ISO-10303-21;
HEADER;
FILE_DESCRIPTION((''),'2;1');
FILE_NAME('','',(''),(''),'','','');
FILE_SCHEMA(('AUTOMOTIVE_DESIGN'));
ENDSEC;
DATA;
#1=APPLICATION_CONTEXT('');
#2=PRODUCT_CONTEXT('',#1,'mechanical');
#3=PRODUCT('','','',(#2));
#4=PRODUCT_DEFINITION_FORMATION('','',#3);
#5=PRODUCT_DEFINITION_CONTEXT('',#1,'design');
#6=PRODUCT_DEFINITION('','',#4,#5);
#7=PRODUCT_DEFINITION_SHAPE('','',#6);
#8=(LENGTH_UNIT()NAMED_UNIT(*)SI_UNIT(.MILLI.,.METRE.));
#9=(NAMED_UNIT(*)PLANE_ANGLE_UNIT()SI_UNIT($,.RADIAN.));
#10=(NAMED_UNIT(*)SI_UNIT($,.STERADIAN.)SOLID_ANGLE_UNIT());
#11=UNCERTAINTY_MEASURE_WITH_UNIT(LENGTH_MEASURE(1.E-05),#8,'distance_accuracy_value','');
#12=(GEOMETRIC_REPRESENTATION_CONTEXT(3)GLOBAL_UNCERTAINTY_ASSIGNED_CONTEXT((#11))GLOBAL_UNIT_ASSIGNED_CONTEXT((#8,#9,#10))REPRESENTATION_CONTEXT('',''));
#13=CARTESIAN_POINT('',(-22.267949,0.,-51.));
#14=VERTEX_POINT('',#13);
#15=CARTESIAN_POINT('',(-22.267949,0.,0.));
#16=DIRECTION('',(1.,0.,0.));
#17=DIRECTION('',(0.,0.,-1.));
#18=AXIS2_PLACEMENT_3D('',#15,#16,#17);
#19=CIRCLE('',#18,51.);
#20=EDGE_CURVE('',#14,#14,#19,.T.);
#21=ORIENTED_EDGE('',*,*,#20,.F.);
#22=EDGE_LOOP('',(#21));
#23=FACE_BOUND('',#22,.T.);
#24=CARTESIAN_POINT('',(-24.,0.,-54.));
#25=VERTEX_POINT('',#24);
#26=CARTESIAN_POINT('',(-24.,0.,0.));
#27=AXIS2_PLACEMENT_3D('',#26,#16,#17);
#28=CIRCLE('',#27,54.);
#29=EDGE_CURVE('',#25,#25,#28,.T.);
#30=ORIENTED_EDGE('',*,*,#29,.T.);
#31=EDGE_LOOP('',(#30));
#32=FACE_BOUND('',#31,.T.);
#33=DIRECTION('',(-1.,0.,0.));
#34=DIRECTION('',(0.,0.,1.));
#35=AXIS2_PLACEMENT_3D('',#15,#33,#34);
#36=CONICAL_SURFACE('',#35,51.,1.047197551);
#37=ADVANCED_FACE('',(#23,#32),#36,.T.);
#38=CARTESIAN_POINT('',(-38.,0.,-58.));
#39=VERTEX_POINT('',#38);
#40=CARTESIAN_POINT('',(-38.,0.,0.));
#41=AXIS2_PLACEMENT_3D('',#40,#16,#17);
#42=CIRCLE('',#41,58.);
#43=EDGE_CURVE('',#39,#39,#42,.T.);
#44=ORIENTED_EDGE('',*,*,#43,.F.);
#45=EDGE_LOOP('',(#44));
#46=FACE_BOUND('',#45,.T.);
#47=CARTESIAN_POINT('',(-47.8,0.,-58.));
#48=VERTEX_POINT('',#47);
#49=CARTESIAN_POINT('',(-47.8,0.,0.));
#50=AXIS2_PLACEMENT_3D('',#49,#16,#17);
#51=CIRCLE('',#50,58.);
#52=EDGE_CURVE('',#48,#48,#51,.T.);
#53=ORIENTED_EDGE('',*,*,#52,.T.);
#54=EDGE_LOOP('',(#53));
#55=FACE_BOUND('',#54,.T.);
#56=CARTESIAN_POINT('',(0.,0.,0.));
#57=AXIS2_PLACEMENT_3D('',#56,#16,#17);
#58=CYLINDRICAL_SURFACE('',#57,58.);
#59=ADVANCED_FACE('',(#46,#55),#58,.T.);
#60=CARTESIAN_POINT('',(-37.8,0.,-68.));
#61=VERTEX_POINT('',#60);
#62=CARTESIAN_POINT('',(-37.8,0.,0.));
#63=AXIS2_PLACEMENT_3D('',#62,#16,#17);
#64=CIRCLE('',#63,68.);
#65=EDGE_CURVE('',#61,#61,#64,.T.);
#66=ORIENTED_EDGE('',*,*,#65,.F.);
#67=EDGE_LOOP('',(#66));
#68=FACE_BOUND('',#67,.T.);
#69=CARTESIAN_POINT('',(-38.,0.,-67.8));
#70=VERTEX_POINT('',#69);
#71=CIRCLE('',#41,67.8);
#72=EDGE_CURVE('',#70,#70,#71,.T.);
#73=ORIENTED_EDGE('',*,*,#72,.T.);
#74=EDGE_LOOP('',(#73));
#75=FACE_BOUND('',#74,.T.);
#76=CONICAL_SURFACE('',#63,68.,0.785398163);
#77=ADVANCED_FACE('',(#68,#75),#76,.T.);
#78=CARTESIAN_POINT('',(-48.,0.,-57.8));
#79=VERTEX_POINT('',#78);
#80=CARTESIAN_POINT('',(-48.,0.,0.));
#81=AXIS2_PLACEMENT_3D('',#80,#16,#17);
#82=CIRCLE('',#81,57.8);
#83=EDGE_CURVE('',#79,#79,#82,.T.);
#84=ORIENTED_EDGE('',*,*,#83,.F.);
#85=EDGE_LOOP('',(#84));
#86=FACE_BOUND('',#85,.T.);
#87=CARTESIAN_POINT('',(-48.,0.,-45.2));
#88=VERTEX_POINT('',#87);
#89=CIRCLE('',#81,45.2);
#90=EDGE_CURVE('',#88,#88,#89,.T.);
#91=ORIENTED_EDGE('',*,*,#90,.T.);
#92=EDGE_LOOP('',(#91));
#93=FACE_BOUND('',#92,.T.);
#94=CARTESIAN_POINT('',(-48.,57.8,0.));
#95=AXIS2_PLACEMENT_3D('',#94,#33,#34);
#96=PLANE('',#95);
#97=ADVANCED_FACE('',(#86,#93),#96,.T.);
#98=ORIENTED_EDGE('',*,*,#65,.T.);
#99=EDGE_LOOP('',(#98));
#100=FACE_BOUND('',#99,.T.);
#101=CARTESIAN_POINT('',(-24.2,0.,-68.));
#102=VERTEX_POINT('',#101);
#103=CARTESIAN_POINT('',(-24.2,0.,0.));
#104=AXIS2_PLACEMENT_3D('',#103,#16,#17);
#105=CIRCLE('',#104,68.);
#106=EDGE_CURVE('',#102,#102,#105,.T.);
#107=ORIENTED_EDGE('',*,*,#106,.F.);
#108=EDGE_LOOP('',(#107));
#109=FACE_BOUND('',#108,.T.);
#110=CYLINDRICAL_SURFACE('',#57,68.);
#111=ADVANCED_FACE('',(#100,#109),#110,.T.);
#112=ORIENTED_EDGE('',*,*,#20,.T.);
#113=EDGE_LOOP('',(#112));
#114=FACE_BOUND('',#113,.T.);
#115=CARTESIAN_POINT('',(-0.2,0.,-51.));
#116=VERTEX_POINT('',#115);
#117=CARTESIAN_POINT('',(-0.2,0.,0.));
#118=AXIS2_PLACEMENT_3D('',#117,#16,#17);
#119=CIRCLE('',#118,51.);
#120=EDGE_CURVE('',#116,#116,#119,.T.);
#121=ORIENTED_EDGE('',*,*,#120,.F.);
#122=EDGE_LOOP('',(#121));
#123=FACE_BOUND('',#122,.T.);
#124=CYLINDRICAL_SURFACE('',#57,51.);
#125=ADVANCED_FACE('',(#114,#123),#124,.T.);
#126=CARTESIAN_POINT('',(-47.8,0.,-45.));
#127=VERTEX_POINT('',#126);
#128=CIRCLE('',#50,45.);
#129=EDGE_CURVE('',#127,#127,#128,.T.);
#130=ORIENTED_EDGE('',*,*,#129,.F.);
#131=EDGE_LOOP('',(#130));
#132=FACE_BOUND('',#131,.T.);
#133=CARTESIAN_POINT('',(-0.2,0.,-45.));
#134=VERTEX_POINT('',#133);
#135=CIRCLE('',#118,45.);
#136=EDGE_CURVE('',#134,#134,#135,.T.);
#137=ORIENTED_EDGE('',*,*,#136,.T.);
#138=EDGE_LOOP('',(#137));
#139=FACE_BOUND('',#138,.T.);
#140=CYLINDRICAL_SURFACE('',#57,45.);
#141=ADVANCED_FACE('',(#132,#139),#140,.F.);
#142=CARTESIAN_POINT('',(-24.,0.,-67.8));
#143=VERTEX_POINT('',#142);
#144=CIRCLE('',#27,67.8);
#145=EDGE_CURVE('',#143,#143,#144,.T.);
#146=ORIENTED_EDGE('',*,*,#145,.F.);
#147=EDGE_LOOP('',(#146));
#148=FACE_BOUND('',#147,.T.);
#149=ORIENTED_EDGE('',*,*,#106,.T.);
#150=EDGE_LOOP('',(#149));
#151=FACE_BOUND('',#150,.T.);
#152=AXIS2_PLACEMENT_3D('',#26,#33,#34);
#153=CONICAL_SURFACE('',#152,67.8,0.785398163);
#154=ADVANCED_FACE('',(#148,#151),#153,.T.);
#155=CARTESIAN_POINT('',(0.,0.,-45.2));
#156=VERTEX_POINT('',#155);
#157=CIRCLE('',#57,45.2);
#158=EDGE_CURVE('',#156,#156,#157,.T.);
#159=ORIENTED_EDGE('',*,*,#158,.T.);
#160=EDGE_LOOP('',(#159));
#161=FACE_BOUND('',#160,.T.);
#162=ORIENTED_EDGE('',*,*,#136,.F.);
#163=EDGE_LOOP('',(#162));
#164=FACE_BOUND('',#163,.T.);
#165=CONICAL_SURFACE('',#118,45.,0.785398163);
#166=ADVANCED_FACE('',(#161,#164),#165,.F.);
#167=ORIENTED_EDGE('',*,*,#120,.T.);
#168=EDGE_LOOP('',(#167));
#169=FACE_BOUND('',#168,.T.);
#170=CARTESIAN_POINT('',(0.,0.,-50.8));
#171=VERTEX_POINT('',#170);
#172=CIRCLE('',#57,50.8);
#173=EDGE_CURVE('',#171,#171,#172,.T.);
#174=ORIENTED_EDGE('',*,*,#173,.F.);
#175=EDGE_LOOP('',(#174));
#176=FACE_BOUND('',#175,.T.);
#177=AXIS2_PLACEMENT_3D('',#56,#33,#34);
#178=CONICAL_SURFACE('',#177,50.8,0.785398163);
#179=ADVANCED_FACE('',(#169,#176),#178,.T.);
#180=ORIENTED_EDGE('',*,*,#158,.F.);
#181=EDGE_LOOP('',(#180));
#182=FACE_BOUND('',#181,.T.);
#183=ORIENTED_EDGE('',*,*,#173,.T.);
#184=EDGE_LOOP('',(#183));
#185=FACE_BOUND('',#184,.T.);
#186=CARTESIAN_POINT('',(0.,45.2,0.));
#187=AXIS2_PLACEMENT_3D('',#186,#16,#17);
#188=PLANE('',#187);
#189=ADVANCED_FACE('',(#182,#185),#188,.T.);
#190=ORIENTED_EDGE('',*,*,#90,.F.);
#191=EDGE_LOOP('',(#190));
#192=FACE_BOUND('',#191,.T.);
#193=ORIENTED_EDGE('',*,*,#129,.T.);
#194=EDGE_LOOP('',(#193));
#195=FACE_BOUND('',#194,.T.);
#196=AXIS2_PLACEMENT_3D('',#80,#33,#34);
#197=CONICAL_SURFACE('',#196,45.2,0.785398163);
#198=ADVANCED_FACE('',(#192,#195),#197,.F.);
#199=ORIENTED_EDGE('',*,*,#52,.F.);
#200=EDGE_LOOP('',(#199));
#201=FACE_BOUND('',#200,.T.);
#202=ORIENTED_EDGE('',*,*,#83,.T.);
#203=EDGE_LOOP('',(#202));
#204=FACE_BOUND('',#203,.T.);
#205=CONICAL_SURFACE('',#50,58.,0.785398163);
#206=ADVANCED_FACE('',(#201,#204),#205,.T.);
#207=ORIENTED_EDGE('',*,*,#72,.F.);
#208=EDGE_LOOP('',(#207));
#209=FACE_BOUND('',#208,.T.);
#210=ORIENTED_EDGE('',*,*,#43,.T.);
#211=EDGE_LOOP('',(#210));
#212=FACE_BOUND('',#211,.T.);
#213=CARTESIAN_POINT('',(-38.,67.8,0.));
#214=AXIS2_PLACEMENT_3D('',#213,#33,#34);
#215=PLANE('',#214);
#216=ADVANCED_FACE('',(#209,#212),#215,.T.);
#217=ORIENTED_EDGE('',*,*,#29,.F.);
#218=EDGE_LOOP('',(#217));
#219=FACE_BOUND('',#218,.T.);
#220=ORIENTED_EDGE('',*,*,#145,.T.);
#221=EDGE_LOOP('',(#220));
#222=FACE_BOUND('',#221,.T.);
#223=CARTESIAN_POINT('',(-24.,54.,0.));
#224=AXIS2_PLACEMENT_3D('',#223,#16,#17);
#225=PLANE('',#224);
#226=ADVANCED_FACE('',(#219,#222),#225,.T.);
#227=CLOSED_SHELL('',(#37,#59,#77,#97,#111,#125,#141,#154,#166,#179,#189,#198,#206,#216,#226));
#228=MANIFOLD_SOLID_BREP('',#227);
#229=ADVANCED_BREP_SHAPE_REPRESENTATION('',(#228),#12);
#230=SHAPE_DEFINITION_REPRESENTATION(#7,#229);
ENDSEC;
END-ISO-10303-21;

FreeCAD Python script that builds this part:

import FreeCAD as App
import Part
import Sketcher
from FreeCAD import Vector
Q = App.Units.Quantity


def add_polygon(sketch, points):
    """Adds a closed chain of lines whose ends are joined by coincident constraints."""
    first, n = sketch.GeometryCount, len(points)
    for a, b in zip(points, points[1:] + points[:1]):
        sketch.addGeometry(Part.LineSegment(App.Vector(*a, 0), App.Vector(*b, 0)), False)
    for i in range(n):
        sketch.addConstraint(Sketcher.Constraint("Coincident", first + i, 2, first + (i + 1) % n, 1))

doc = App.newDocument("Part")
body = doc.addObject("PartDesign::Body", "Body")

# Sketch on XY plane
sketch1 = body.newObject("Sketcher::SketchObject", "Sketch")
sketch1.AttachmentSupport = (doc.getObject("XY_Plane"), [""])
sketch1.MapMode = "FlatFace"
add_polygon(sketch1, [(0, 45.2), (0, 50.8), (-0.2, 51), (-22.27, 51), (-24, 54), (-24, 67.8), (-24.2, 68), (-37.8, 68), (-38, 67.8), (-38, 58), (-47.8, 58), (-48, 57.8), (-48, 45.2), (-47.8, 45), (-0.2, 45)])  # lines 0-14
sketch1.addConstraint(Sketcher.Constraint("Vertical", 0))
sketch1.addConstraint(Sketcher.Constraint("Horizontal", 2))
sketch1.addConstraint(Sketcher.Constraint("Vertical", 4))
sketch1.addConstraint(Sketcher.Constraint("Horizontal", 6))
sketch1.addConstraint(Sketcher.Constraint("Vertical", 8))
sketch1.addConstraint(Sketcher.Constraint("Horizontal", 9))
sketch1.addConstraint(Sketcher.Constraint("Vertical", 11))
sketch1.addConstraint(Sketcher.Constraint("Horizontal", 13))
sketch1.addConstraint(Sketcher.Constraint("PointOnObject", 0, 2, -2))
sketch1.addConstraint(Sketcher.Constraint("Parallel", 1, 5))
sketch1.addConstraint(Sketcher.Constraint("Perpendicular", 5, 7))
sketch1.addConstraint(Sketcher.Constraint("Parallel", 7, 10))
sketch1.addConstraint(Sketcher.Constraint("Perpendicular", 10, 12))
sketch1.addConstraint(Sketcher.Constraint("Perpendicular", 12, 14))
sketch1.addConstraint(Sketcher.Constraint("Horizontal", 4, 2, 7, 2))
sketch1.addConstraint(Sketcher.Constraint("Horizontal", 11, 2, 14, 2))
sketch1.addConstraint(Sketcher.Constraint("Vertical", 9, 2, 12, 2))
sketch1.addConstraint(Sketcher.Constraint("Vertical", 1, 2, 13, 2))
sketch1.addConstraint(Sketcher.Constraint("Equal", 9, 8))
sketch1.addConstraint(Sketcher.Constraint("Equal", 1, 5))
sketch1.addConstraint(Sketcher.Constraint("Equal", 5, 7))
sketch1.addConstraint(Sketcher.Constraint("Angle", 3, Q("120 deg")))
sketch1.addConstraint(Sketcher.Constraint("DistanceX", 6, 2, 6, 1, 13.6))
sketch1.addConstraint(Sketcher.Constraint("DistanceX", 9, 2, 9, 1, 9.8))
sketch1.addConstraint(Sketcher.Constraint("DistanceX", 13, 1, 13, 2, 47.6))
sketch1.addConstraint(Sketcher.Constraint("DistanceY", 0, 1, 0, 2, 5.6))
sketch1.addConstraint(Sketcher.Constraint("DistanceY", 4, 1, 4, 2, 13.8))
sketch1.addConstraint(Sketcher.Constraint("DistanceY", 11, 2, 11, 1, 12.6))
sketch1.addConstraint(Sketcher.Constraint("DistanceY", -1, 1, 1, 2, 51.0))
sketch1.addConstraint(Sketcher.Constraint("DistanceX", 3, 2, -1, 1, 24.0))
revolution = body.newObject("PartDesign::Revolution", "Revolution")
revolution.Profile = sketch1
revolution.ReferenceAxis = (sketch1, ["H_Axis"])
revolution.Angle = 360

doc.recompute()
